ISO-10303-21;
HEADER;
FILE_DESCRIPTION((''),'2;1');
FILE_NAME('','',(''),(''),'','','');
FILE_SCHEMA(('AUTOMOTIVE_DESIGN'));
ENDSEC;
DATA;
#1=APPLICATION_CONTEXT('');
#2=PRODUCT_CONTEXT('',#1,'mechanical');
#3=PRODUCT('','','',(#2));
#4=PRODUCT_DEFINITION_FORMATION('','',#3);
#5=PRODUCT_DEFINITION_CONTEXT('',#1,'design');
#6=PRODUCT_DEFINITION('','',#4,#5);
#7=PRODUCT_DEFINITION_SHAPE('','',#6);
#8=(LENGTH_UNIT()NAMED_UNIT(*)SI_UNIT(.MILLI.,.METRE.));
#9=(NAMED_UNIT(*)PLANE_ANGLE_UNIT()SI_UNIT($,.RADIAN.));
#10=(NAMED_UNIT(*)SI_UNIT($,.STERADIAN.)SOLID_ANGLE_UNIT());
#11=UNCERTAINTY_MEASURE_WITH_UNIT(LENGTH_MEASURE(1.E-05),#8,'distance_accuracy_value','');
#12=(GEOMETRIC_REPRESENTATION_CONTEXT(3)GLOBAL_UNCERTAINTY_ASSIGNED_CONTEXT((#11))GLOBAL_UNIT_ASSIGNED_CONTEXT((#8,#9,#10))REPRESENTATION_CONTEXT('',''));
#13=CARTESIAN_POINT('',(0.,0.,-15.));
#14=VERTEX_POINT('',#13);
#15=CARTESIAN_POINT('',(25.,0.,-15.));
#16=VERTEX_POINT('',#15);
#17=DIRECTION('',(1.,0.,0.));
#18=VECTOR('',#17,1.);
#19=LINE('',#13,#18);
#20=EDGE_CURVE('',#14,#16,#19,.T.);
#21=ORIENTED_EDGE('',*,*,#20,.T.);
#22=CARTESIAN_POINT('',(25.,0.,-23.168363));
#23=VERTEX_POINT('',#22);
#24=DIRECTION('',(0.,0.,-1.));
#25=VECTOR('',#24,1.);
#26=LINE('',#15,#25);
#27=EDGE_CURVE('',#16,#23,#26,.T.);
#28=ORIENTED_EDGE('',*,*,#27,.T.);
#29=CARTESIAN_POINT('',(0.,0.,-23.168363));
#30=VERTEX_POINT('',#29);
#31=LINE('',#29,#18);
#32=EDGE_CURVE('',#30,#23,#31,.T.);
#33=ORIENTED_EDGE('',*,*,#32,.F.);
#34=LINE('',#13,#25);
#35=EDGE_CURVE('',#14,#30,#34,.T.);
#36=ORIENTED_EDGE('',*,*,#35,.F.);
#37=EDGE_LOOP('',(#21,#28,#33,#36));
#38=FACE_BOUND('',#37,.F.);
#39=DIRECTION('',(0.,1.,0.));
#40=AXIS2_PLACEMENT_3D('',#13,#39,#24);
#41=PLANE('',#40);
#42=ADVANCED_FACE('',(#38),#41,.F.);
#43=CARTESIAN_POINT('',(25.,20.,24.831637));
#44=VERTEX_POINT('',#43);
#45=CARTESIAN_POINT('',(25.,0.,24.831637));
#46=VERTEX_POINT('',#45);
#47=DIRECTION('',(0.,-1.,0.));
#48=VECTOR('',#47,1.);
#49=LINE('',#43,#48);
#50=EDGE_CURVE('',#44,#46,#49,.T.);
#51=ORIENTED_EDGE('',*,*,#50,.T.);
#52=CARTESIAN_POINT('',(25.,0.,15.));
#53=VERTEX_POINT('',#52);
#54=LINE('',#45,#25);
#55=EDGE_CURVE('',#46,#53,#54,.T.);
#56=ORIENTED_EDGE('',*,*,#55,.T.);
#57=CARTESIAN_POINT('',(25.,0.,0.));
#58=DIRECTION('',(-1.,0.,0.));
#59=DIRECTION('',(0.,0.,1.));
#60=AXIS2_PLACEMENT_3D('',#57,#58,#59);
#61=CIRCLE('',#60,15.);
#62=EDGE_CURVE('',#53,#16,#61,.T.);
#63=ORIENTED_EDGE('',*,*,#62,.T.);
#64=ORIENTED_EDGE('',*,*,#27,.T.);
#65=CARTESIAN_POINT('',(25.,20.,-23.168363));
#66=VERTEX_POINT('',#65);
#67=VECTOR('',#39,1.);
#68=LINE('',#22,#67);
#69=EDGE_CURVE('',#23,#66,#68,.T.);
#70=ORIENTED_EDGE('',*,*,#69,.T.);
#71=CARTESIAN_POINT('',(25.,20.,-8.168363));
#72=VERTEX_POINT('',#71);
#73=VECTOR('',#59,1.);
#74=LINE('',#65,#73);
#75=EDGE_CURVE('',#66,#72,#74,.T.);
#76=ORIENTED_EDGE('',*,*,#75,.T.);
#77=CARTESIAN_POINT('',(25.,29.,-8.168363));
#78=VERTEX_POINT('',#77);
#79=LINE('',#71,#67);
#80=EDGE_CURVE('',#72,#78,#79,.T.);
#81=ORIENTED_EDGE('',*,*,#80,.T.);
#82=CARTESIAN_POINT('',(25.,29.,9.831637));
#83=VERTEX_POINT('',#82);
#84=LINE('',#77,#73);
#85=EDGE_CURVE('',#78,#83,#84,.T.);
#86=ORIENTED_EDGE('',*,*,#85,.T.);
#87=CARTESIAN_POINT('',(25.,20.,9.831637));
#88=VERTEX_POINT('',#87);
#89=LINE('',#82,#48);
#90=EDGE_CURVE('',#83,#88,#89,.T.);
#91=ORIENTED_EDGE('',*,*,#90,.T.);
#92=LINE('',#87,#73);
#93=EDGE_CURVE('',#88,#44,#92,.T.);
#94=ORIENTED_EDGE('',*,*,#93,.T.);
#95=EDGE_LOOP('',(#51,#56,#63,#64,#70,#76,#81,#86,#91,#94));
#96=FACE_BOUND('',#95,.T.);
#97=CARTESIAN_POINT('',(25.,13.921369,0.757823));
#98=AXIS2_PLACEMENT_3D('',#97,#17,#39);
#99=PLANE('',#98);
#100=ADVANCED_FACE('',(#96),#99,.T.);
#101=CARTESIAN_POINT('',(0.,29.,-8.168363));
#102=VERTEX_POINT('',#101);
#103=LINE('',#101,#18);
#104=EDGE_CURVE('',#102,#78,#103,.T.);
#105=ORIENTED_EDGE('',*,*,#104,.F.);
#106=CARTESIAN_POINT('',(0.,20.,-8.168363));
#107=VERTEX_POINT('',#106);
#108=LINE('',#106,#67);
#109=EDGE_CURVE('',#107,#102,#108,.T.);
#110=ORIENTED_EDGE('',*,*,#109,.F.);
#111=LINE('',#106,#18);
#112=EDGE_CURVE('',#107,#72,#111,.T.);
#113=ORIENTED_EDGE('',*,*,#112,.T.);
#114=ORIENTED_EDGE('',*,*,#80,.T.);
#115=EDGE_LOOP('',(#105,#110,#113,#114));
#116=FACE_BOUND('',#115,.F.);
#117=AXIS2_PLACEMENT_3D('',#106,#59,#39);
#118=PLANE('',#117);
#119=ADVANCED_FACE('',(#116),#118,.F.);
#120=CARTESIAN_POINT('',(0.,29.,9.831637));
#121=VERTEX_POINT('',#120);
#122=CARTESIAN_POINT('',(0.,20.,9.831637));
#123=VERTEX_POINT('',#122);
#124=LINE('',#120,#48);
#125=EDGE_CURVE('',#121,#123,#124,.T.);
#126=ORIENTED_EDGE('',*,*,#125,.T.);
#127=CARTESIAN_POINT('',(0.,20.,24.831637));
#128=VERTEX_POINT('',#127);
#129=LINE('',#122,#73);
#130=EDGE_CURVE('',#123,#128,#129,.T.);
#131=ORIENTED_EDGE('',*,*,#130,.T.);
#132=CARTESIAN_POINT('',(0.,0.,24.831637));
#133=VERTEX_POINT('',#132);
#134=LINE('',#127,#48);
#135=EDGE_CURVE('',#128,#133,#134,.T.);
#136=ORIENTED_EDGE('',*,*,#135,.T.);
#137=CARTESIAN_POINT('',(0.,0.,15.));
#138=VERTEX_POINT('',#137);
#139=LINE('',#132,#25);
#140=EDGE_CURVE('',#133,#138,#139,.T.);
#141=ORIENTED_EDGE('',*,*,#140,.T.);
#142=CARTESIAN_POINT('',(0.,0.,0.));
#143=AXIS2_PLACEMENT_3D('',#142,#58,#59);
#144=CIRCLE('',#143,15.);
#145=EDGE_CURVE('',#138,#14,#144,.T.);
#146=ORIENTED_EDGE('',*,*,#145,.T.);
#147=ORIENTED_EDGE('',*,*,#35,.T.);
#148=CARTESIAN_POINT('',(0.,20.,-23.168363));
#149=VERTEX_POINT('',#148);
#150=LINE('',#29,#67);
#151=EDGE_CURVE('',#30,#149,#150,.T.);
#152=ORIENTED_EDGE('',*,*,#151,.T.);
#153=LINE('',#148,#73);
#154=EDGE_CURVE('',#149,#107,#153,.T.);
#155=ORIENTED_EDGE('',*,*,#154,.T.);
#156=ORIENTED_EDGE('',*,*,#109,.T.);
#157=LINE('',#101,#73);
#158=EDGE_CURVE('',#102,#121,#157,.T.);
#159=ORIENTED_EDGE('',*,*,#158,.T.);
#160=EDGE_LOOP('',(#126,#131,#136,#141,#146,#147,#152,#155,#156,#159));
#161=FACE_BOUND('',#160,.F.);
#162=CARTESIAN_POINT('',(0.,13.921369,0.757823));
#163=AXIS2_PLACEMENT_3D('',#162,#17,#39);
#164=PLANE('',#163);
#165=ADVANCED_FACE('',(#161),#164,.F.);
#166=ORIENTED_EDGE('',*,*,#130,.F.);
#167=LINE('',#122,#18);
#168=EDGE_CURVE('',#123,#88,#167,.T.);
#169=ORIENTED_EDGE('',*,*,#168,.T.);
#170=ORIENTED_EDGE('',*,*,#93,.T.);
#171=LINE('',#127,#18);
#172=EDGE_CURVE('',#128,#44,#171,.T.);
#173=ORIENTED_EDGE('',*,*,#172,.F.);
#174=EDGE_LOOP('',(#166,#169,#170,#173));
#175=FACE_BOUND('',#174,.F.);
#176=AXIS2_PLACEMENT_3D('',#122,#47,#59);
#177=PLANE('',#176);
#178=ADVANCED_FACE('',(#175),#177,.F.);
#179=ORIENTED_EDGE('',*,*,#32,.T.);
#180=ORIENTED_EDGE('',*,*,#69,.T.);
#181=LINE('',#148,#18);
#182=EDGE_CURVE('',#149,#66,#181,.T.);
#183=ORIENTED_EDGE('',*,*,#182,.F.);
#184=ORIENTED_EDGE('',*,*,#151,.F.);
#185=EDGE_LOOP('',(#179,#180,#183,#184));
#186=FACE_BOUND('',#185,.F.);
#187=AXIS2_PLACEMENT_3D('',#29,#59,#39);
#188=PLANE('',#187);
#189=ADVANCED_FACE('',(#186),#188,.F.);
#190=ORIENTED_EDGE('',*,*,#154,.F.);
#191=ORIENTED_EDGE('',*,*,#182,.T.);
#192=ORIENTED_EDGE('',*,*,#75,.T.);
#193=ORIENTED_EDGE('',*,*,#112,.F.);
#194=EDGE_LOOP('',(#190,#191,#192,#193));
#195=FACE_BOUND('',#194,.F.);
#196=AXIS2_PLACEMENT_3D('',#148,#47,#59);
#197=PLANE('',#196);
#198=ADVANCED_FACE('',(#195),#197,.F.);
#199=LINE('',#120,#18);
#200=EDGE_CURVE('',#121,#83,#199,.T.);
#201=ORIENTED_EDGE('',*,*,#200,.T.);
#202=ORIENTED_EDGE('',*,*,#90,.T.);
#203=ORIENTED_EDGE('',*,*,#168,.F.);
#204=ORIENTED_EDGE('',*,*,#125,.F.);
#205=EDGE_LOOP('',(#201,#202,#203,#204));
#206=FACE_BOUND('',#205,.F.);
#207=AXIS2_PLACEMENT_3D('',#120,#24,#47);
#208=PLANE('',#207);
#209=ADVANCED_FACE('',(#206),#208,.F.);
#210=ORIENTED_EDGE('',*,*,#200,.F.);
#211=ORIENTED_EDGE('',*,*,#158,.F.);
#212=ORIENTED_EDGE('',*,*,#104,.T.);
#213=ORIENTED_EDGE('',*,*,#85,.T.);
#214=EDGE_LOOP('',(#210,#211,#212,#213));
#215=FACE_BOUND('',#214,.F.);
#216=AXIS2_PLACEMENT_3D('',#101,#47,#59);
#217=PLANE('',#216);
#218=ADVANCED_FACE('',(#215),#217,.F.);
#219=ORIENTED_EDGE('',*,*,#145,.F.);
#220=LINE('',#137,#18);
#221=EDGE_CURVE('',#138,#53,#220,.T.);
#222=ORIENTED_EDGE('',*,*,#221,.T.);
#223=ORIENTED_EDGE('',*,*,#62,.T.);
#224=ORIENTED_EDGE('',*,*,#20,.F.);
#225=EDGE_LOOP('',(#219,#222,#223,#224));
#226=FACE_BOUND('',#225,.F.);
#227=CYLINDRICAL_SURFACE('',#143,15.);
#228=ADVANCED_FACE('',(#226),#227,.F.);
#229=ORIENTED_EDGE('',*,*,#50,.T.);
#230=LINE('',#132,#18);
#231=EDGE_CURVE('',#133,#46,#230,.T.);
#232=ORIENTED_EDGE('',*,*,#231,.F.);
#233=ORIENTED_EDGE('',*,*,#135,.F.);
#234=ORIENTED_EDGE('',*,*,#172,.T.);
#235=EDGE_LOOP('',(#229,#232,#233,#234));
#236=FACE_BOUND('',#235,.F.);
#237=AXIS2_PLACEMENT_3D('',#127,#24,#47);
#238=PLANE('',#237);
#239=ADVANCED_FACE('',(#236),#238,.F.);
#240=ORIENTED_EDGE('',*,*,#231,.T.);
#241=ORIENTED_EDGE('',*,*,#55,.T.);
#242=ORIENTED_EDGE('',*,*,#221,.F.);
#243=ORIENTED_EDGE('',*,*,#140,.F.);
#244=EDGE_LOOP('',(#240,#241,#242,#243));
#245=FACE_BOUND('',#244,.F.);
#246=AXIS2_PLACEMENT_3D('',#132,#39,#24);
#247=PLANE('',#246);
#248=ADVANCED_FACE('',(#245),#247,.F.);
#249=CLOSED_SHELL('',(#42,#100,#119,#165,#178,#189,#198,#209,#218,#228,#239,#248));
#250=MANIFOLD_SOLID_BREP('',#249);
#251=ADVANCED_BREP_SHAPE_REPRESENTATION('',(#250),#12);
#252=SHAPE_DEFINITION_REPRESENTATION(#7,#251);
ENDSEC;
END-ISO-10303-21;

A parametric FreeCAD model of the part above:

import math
import FreeCAD as App
import Part
import Sketcher
Q = App.Units.Quantity

doc = App.newDocument("Part")
params = doc.addObject("Spreadsheet::Sheet", "Params")
for row, (alias, value) in enumerate([
    ("sketch1_radius", "15 mm"),
    ("sketch1_width", "20 mm"),
    ("sketch1_width2", "9 mm"),
    ("sketch1_height", "15 mm"),
    ("sketch1_height2", "18 mm"),
    ("pad1_length", "25 mm"),
], start=1):
    params.set(f"A{row}", alias)
    params.set(f"B{row}", "=" + value)
    params.setAlias(f"B{row}", alias)

body = doc.addObject("PartDesign::Body", "Body")

# Sketch on YZ plane
sketch1 = body.newObject("Sketcher::SketchObject", "Sketch")
sketch1.AttachmentSupport = (doc.getObject("YZ_Plane"), [""])
sketch1.MapMode = "FlatFace"
sketch1.addGeometry(Part.ArcOfCircle(Part.Circle(App.Vector(0, 0, 0), App.Vector(0, 0, 1), 15), math.radians(-90), math.radians(90)), False)
sketch1.addGeometry(Part.LineSegment(App.Vector(0, -15, 0), App.Vector(0, -23, 0)), False)
sketch1.addGeometry(Part.LineSegment(App.Vector(0, -23, 0), App.Vector(20, -23, 0)), False)
sketch1.addGeometry(Part.LineSegment(App.Vector(20, -23, 0), App.Vector(20, -8, 0)), False)
sketch1.addGeometry(Part.LineSegment(App.Vector(20, -8, 0), App.Vector(29, -8, 0)), False)
sketch1.addGeometry(Part.LineSegment(App.Vector(29, -8, 0), App.Vector(29, 10, 0)), False)
sketch1.addGeometry(Part.LineSegment(App.Vector(29, 10, 0), App.Vector(20, 10, 0)), False)
sketch1.addGeometry(Part.LineSegment(App.Vector(20, 10, 0), App.Vector(20, 25, 0)), False)
sketch1.addGeometry(Part.LineSegment(App.Vector(20, 25, 0), App.Vector(0, 25, 0)), False)
sketch1.addGeometry(Part.LineSegment(App.Vector(0, 25, 0), App.Vector(0, 15, 0)), False)
sketch1.addConstraint(Sketcher.Constraint("Coincident", 0, 1, 1, 1))
sketch1.addConstraint(Sketcher.Constraint("Coincident", 1, 2, 2, 1))
sketch1.addConstraint(Sketcher.Constraint("Coincident", 2, 2, 3, 1))
sketch1.addConstraint(Sketcher.Constraint("Coincident", 3, 2, 4, 1))
sketch1.addConstraint(Sketcher.Constraint("Coincident", 4, 2, 5, 1))
sketch1.addConstraint(Sketcher.Constraint("Coincident", 5, 2, 6, 1))
sketch1.addConstraint(Sketcher.Constraint("Coincident", 6, 2, 7, 1))
sketch1.addConstraint(Sketcher.Constraint("Coincident", 7, 2, 8, 1))
sketch1.addConstraint(Sketcher.Constraint("Coincident", 8, 2, 9, 1))
sketch1.addConstraint(Sketcher.Constraint("Coincident", 9, 2, 0, 2))
sketch1.addConstraint(Sketcher.Constraint("Vertical", 1))
sketch1.addConstraint(Sketcher.Constraint("Horizontal", 2))
sketch1.addConstraint(Sketcher.Constraint("Vertical", 3))
sketch1.addConstraint(Sketcher.Constraint("Horizontal", 4))
sketch1.addConstraint(Sketcher.Constraint("Vertical", 5))
sketch1.addConstraint(Sketcher.Constraint("Horizontal", 6))
sketch1.addConstraint(Sketcher.Constraint("Vertical", 7))
sketch1.addConstraint(Sketcher.Constraint("Horizontal", 8))
sketch1.addConstraint(Sketcher.Constraint("Vertical", 9))
sketch1.addConstraint(Sketcher.Constraint("Coincident", 0, 3, -1, 1))
sketch1.addConstraint(Sketcher.Constraint("PointOnObject", 0, 1, -2))
sketch1.addConstraint(Sketcher.Constraint("PointOnObject", 8, 2, -2))
sketch1.addConstraint(Sketcher.Constraint("Vertical", 3, 2, 6, 2))
sketch1.addConstraint(Sketcher.Constraint("Equal", 3, 7))
sketch1.addConstraint(Sketcher.Constraint("Radius", 0, Q("15 mm")))
sketch1.addConstraint(Sketcher.Constraint("DistanceX", 2, 1, 2, 2, Q("20 mm")))
sketch1.addConstraint(Sketcher.Constraint("DistanceX", 4, 1, 4, 2, Q("9 mm")))
sketch1.addConstraint(Sketcher.Constraint("DistanceY", 3, 1, 3, 2, Q("15 mm")))
sketch1.addConstraint(Sketcher.Constraint("DistanceY", 5, 1, 5, 2, Q("18 mm")))
sketch1.addConstraint(Sketcher.Constraint("DistanceY", 1, 2, 1, 1, Q("8.168363 mm")))
sketch1.setExpression("Constraints[24]", "Params.sketch1_radius")
sketch1.setExpression("Constraints[25]", "Params.sketch1_width")
sketch1.setExpression("Constraints[26]", "Params.sketch1_width2")
sketch1.setExpression("Constraints[27]", "Params.sketch1_height")
sketch1.setExpression("Constraints[28]", "Params.sketch1_height2")
pad1 = body.newObject("PartDesign::Pad", "Pad")
pad1.Profile = sketch1
pad1.setExpression("Length", "Params.pad1_length")

doc.recompute()
